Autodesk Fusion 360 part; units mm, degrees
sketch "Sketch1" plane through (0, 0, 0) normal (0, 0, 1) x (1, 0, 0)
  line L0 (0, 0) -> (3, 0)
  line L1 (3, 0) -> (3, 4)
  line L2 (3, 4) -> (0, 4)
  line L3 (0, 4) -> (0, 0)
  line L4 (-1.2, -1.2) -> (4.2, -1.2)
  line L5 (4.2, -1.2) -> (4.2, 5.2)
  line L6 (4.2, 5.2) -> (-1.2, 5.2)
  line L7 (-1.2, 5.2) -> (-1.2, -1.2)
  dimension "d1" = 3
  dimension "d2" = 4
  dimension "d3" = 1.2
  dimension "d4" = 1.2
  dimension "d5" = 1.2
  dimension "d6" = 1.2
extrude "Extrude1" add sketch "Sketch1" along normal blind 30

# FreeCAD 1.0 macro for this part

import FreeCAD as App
import Part
import Sketcher
from FreeCAD import Vector

doc = App.newDocument("Part")
body = doc.addObject("PartDesign::Body", "Body")

# Sketch on XY plane
sketch1 = body.newObject("Sketcher::SketchObject", "Sketch")
sketch1.AttachmentSupport = (doc.getObject("XY_Plane"), [""])
sketch1.MapMode = "FlatFace"
sketch1.addGeometry([
    Part.LineSegment(Vector(-1.2, 5.2, 0), Vector(-1.2, -1.2, 0)),  # 0
    Part.LineSegment(Vector(-1.2, -1.2, 0), Vector(4.2, -1.2, 0)),  # 1
    Part.LineSegment(Vector(4.2, -1.2, 0), Vector(4.2, 5.2, 0)),  # 2
    Part.LineSegment(Vector(4.2, 5.2, 0), Vector(-1.2, 5.2, 0)),  # 3
    Part.LineSegment(Vector(3, 0, 0), Vector(0, 0, 0)),  # 4
    Part.LineSegment(Vector(0, 0, 0), Vector(0, 4, 0)),  # 5
    Part.LineSegment(Vector(0, 4, 0), Vector(3, 4, 0)),  # 6
    Part.LineSegment(Vector(3, 4, 0), Vector(3, 0, 0)),  # 7
], False)
sketch1.addConstraint([
    Sketcher.Constraint("Coincident", 0, 2, 1, 1),
    Sketcher.Constraint("Coincident", 1, 2, 2, 1),
    Sketcher.Constraint("Coincident", 2, 2, 3, 1),
    Sketcher.Constraint("Coincident", 3, 2, 0, 1),
    Sketcher.Constraint("Coincident", 4, 2, 5, 1),
    Sketcher.Constraint("Coincident", 5, 2, 6, 1),
    Sketcher.Constraint("Coincident", 6, 2, 7, 1),
    Sketcher.Constraint("Coincident", 7, 2, 4, 1),
    Sketcher.Constraint("Vertical", 0),
    Sketcher.Constraint("Horizontal", 1),
    Sketcher.Constraint("Vertical", 2),
    Sketcher.Constraint("Horizontal", 3),
    Sketcher.Constraint("Horizontal", 4),
    Sketcher.Constraint("Vertical", 5),
    Sketcher.Constraint("Horizontal", 6),
    Sketcher.Constraint("Vertical", 7),
    Sketcher.Constraint("Coincident", 4, 2, -1, 1),
    Sketcher.Constraint("DistanceX", 4, 2, 4, 1, 3.0),
    Sketcher.Constraint("DistanceY", 5, 1, 5, 2, 4.0),
    Sketcher.Constraint("DistanceX", 0, 2, -1, 1, 1.2),
    Sketcher.Constraint("DistanceY", 0, 2, -1, 1, 1.2),
    Sketcher.Constraint("DistanceY", 5, 2, 3, 2, 1.2),
    Sketcher.Constraint("DistanceX", 6, 2, 2, 2, 1.2),
])
pad1 = body.newObject("PartDesign::Pad", "Pad")
pad1.Profile = sketch1
pad1.Length = 30

doc.recompute()
